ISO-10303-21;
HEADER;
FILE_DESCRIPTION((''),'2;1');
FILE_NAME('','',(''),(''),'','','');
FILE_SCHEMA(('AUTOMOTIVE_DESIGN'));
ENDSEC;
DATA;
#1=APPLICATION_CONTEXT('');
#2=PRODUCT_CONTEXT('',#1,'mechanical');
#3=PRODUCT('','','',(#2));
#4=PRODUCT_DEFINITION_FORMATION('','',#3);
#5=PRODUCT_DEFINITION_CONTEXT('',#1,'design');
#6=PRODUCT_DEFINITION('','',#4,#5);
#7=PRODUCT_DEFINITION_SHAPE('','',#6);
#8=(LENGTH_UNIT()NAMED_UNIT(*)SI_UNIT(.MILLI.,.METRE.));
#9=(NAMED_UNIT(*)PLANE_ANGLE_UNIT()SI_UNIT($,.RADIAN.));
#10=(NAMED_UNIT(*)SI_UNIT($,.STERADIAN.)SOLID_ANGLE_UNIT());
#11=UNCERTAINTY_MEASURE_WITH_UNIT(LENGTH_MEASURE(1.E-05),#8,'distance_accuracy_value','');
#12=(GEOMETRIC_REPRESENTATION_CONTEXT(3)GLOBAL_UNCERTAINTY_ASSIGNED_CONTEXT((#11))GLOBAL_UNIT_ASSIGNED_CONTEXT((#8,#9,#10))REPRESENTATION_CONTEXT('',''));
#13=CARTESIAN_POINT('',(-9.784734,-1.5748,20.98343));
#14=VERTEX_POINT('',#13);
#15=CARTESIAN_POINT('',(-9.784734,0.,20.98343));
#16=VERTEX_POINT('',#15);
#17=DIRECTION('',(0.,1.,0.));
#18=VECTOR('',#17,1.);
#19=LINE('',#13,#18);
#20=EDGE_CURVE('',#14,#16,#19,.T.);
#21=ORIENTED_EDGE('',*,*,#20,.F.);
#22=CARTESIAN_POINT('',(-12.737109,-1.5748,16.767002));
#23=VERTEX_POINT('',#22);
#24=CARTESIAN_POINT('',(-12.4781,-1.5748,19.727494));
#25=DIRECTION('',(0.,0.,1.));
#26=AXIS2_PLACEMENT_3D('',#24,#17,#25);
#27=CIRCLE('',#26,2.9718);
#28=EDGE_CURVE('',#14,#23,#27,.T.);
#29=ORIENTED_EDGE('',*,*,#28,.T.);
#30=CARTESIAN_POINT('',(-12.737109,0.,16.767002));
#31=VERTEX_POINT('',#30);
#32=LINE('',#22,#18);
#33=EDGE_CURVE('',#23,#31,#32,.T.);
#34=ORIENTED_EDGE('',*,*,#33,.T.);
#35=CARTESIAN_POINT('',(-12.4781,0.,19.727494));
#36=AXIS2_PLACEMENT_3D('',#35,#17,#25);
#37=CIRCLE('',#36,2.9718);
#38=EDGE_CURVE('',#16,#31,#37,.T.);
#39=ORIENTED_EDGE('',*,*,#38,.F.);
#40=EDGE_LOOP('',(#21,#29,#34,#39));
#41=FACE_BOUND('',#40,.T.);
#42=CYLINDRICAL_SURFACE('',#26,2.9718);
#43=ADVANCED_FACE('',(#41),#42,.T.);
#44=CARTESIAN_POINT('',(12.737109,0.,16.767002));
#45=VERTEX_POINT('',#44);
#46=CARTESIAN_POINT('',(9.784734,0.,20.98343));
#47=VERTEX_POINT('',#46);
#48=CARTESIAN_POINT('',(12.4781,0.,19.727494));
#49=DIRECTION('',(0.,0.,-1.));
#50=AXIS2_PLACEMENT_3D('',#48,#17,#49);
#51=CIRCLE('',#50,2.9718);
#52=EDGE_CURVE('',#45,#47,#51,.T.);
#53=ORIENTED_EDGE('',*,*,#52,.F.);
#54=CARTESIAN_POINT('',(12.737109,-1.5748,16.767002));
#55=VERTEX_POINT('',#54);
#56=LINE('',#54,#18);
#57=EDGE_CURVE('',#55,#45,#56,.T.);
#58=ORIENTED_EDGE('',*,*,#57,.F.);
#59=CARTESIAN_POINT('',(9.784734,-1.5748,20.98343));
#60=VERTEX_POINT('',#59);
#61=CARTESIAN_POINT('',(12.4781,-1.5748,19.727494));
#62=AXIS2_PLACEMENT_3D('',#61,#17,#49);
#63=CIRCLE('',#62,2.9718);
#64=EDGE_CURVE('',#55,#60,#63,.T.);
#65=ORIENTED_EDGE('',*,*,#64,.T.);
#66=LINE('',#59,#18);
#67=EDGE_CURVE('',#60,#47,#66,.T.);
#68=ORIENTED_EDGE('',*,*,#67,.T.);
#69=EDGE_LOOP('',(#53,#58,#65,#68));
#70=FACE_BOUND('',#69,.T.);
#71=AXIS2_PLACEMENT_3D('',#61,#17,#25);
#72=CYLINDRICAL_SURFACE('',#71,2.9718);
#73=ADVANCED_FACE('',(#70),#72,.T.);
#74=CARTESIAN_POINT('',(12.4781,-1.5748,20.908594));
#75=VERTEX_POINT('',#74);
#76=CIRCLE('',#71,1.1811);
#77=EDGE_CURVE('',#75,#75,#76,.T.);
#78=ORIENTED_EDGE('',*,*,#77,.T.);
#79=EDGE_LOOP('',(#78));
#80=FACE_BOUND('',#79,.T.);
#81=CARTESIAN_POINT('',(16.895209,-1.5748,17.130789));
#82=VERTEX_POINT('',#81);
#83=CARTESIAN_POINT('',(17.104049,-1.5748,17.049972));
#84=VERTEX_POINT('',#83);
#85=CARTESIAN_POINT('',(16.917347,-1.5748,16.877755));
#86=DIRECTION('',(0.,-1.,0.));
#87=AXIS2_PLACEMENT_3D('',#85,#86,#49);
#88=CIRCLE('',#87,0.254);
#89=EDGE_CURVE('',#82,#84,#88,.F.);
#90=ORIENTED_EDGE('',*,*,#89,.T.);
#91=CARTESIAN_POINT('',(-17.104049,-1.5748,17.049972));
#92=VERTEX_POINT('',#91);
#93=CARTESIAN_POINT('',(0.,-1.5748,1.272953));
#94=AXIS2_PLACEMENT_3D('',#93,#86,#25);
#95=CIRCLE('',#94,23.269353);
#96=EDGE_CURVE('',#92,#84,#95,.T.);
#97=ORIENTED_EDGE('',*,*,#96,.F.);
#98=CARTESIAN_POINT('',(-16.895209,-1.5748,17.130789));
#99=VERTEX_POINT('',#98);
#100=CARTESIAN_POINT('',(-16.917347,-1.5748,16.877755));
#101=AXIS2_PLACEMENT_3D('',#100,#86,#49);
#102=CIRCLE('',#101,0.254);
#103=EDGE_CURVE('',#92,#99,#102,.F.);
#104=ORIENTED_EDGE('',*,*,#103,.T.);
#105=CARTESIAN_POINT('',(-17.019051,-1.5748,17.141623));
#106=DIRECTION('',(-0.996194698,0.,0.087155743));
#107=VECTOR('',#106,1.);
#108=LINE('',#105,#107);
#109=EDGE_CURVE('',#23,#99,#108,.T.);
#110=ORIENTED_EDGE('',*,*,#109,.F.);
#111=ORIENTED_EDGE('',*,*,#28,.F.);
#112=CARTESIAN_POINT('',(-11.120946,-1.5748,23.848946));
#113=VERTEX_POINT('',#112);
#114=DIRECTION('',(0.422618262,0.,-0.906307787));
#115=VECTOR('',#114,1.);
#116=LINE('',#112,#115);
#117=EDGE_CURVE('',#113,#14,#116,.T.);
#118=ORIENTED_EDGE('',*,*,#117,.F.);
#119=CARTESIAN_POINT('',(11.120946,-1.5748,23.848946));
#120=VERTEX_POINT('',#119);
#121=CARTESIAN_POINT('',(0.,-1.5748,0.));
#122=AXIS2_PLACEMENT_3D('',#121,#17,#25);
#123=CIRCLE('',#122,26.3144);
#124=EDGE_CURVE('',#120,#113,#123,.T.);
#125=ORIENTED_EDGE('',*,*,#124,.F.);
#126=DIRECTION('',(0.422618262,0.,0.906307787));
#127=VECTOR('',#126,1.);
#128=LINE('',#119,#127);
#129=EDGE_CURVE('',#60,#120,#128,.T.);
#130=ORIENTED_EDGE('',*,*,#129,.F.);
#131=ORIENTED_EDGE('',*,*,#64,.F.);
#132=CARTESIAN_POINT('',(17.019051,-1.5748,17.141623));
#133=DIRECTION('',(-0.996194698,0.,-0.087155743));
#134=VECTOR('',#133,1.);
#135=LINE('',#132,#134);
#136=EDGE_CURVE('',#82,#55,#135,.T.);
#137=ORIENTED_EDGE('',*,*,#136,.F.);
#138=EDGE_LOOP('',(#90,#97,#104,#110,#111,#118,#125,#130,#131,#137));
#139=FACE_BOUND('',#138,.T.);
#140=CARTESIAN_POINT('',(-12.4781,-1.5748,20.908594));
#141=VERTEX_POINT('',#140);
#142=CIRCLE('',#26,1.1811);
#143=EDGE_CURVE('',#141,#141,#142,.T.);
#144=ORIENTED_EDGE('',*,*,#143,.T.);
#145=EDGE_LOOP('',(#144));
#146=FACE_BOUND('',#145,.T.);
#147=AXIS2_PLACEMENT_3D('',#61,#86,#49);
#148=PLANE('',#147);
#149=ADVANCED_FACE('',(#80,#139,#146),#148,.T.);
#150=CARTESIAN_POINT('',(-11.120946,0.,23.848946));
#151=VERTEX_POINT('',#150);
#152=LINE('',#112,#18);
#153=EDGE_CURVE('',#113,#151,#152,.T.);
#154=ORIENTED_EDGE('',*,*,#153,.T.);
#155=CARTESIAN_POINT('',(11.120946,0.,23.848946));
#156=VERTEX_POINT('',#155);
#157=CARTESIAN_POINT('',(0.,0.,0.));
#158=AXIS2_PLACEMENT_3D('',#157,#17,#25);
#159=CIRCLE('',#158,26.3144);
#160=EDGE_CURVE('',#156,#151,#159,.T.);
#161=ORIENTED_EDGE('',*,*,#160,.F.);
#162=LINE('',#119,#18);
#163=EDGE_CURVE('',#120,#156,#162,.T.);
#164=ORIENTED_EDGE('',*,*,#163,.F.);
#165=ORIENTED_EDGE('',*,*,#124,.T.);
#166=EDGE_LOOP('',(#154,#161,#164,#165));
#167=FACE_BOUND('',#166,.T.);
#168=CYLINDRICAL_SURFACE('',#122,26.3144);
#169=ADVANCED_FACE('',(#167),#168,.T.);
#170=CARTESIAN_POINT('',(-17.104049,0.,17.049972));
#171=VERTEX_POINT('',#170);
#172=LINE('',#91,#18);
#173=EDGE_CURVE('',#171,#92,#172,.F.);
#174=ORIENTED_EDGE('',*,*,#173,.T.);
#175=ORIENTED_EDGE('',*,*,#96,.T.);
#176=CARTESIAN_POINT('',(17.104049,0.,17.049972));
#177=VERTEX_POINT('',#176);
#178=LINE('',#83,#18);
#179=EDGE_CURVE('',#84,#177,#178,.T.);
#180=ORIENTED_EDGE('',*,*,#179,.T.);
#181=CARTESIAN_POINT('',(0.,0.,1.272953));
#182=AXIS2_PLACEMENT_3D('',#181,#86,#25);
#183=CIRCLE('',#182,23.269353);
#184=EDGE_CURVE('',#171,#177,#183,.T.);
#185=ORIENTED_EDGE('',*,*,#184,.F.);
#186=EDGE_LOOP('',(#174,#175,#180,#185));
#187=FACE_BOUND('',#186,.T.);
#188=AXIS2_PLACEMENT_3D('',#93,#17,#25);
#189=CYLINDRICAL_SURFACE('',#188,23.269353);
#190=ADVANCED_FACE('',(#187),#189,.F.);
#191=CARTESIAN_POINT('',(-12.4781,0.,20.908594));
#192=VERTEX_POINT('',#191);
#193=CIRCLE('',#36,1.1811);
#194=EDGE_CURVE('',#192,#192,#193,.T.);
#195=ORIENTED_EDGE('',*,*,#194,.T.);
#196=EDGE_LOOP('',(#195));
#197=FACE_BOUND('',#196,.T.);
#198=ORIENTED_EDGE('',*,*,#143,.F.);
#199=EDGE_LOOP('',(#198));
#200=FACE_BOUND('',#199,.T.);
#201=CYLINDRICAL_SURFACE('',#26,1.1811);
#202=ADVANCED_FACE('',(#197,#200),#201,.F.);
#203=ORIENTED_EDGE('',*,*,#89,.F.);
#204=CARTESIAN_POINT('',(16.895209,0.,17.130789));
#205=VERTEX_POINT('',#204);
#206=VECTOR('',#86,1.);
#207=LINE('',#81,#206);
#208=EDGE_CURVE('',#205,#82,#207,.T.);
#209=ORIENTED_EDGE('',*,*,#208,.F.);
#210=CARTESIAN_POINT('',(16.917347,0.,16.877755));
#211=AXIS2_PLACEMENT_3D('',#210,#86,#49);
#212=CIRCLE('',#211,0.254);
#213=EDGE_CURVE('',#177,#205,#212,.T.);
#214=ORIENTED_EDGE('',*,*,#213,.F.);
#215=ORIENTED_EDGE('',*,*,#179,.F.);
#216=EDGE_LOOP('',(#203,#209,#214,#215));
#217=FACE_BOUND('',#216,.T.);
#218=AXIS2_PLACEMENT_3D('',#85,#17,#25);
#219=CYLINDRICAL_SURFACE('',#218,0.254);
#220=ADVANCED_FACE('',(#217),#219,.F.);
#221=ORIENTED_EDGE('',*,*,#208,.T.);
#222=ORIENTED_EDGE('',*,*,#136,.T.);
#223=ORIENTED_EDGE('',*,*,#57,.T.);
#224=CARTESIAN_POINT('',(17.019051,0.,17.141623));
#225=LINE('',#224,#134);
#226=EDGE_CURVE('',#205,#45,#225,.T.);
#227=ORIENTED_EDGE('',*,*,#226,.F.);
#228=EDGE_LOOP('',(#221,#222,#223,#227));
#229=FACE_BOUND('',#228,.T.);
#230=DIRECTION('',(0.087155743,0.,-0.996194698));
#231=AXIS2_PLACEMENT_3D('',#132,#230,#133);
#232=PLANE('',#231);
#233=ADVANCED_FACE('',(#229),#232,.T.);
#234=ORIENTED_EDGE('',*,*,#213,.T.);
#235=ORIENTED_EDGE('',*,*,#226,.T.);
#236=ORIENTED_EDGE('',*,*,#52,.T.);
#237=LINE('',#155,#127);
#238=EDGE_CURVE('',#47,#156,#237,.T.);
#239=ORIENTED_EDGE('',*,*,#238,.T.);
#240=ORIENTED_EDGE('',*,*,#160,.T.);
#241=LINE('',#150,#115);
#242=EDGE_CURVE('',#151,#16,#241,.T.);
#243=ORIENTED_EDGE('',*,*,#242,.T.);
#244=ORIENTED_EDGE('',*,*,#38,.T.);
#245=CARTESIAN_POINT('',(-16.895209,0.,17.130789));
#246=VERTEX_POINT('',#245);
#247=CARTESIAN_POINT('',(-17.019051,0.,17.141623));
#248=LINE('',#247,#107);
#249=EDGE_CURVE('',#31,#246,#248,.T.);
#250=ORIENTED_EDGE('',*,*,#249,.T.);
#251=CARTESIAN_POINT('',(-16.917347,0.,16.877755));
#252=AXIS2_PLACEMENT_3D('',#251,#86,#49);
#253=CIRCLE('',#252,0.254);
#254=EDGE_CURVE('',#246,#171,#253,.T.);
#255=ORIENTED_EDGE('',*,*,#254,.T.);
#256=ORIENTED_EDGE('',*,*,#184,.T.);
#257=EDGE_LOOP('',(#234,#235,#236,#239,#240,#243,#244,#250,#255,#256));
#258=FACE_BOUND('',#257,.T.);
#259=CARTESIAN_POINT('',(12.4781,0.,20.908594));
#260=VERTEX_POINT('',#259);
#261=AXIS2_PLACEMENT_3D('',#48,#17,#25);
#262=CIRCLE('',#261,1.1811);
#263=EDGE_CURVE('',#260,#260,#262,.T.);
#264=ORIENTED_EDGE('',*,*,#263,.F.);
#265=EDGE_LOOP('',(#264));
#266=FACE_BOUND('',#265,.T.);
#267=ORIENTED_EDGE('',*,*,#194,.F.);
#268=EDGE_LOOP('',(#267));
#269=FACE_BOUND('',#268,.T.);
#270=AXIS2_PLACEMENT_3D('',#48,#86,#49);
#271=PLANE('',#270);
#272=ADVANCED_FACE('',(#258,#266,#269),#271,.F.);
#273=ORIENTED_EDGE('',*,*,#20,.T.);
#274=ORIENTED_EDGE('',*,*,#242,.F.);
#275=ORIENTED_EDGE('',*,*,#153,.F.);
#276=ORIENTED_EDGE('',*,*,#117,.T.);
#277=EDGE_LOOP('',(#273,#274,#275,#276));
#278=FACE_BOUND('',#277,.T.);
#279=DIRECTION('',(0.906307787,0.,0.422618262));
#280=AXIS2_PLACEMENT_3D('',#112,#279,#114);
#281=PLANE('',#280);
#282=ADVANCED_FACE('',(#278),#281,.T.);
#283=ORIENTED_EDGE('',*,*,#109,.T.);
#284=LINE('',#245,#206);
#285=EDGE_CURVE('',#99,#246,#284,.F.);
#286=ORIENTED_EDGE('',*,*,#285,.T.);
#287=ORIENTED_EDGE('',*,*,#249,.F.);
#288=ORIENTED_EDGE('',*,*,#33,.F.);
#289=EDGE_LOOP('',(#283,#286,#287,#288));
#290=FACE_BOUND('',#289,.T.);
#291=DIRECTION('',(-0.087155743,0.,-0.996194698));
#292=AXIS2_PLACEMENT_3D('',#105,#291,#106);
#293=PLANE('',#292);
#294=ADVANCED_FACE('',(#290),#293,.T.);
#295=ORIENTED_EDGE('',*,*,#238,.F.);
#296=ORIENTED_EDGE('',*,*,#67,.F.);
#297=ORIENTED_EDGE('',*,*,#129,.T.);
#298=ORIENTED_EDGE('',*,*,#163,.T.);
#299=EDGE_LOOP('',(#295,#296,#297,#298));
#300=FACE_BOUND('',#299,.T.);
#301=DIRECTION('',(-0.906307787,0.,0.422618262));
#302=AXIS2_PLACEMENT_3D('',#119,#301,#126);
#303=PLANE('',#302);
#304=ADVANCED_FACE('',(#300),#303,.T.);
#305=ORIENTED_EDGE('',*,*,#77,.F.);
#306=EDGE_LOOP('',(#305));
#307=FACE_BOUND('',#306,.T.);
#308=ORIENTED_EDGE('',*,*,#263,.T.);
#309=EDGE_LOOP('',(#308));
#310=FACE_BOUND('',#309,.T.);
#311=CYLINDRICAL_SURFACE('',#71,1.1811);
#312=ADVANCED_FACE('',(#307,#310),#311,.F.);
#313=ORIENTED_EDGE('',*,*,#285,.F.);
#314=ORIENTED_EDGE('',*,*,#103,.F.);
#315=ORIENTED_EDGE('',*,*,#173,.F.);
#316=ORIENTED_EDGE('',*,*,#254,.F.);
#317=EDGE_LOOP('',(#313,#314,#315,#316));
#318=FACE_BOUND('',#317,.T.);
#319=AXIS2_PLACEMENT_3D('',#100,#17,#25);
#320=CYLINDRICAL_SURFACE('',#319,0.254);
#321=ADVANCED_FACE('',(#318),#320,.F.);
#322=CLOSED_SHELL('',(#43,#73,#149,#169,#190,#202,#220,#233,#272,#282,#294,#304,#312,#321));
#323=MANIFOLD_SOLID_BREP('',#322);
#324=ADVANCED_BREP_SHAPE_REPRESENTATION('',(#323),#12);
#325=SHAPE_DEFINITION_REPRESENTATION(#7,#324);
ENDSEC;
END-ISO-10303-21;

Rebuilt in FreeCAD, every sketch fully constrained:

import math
import FreeCAD as App
import Part
import Sketcher
from FreeCAD import Vector
Q = App.Units.Quantity


def edges_at(feature, points):
    """Names of the edges that pass closest to the given points."""
    edges = feature.Shape.Edges
    near = lambda p: min(range(len(edges)), key=lambda i: edges[i].distToShape(Part.Vertex(*p))[0])
    return sorted({f"Edge{near(p) + 1}" for p in points})

doc = App.newDocument("Part")
body = doc.addObject("PartDesign::Body", "Body")

sketch1 = body.newObject("Sketcher::SketchObject", "Sketch")
sketch1.AttachmentSupport = (doc.getObject("XZ_Plane"), [""])
sketch1.MapMode = "FlatFace"
sketch1.addGeometry([
    Part.LineSegment(Vector(9.784734, 20.98343, 0), Vector(11.120946, 23.848946, 0)),
    Part.ArcOfCircle(Part.Circle(Vector(0, 0, 0), Vector(0, 0, 1), 26.3144), math.radians(115), math.radians(425)),
    Part.LineSegment(Vector(-11.120946, 23.848946, 0), Vector(-9.784734, 20.98343, 0)),
    Part.ArcOfCircle(Part.Circle(Vector(-12.4781, 19.727494, 0), Vector(0, 0, 1), 2.9718), math.radians(-95), math.radians(25)),
    Part.LineSegment(Vector(-12.737109, 16.767002, 0), Vector(-17.019051, 17.141623, 0)),
    Part.ArcOfCircle(Part.Circle(Vector(0, 1.272953, 0), Vector(0, 0, 1), 23.269353), math.radians(137.003334), math.radians(402.996666)),
    Part.LineSegment(Vector(17.019051, 17.141623, 0), Vector(12.737109, 16.767002, 0)),
    Part.ArcOfCircle(Part.Circle(Vector(12.4781, 19.727494, 0), Vector(0, 0, 1), 2.9718), math.radians(155), math.radians(275)),
    Part.Circle(Vector(12.4781, 19.727494, 0), Vector(0, 0, 1), 1.1811),
    Part.Circle(Vector(-12.4781, 19.727494, 0), Vector(0, 0, 1), 1.1811),
], False)
sketch1.addConstraint([
    Sketcher.Constraint("Coincident", 0, 2, 1, 2),
    Sketcher.Constraint("Coincident", 1, 1, 2, 1),
    Sketcher.Constraint("Tangent", 2, 2, 3, 2),
    Sketcher.Constraint("Tangent", 3, 1, 4, 1),
    Sketcher.Constraint("Coincident", 4, 2, 5, 1),
    Sketcher.Constraint("Coincident", 5, 2, 6, 1),
    Sketcher.Constraint("Tangent", 6, 2, 7, 2),
    Sketcher.Constraint("Tangent", 7, 1, 0, 1),
    Sketcher.Constraint("Coincident", 1, 3, -1, 1),
    Sketcher.Constraint("Coincident", 8, 3, 7, 3),
    Sketcher.Constraint("Coincident", 9, 3, 3, 3),
    Sketcher.Constraint("Equal", 3, 7),
    Sketcher.Constraint("Equal", 8, 9),
    Sketcher.Constraint("Symmetric", 3, 3, 7, 3, -2),
    Sketcher.Constraint("Symmetric", 4, 2, 5, 2, -2),
    Sketcher.Constraint("Horizontal", 0, 2, 1, 1),
    Sketcher.Constraint("Diameter", 8, Q("0.093 in")),
    Sketcher.Constraint("Angle", 0, Q("65 deg")),
    Sketcher.Constraint("Angle", 4, Q("175 deg")),
    Sketcher.Constraint("Radius", 1, Q("1.036 in")),
    Sketcher.Constraint("Radius", 3, Q("0.117 in")),
    Sketcher.Constraint("Radius", 5, Q("23.269353 mm")),
    Sketcher.Constraint("Distance", 4, Q("4.298298 mm")),
    Sketcher.Constraint("DistanceX", 3, 3, -1, 1, Q("12.4781 mm")),
    Sketcher.Constraint("DistanceY", -1, 1, 2, 2, Q("20.98343 mm")),
])
pad1 = body.newObject("PartDesign::Pad", "Pad")
pad1.Profile = sketch1
pad1.Length = Q("0.062 in")
doc.recompute()

fillet = body.newObject("PartDesign::Fillet", "Fillet")
fillet.Base = (pad1, edges_at(pad1, [(17.019, -0.787, 17.142), (-17.019, -0.787, 17.142)]))
fillet.Radius = Q("0.01 in")

doc.recompute()
